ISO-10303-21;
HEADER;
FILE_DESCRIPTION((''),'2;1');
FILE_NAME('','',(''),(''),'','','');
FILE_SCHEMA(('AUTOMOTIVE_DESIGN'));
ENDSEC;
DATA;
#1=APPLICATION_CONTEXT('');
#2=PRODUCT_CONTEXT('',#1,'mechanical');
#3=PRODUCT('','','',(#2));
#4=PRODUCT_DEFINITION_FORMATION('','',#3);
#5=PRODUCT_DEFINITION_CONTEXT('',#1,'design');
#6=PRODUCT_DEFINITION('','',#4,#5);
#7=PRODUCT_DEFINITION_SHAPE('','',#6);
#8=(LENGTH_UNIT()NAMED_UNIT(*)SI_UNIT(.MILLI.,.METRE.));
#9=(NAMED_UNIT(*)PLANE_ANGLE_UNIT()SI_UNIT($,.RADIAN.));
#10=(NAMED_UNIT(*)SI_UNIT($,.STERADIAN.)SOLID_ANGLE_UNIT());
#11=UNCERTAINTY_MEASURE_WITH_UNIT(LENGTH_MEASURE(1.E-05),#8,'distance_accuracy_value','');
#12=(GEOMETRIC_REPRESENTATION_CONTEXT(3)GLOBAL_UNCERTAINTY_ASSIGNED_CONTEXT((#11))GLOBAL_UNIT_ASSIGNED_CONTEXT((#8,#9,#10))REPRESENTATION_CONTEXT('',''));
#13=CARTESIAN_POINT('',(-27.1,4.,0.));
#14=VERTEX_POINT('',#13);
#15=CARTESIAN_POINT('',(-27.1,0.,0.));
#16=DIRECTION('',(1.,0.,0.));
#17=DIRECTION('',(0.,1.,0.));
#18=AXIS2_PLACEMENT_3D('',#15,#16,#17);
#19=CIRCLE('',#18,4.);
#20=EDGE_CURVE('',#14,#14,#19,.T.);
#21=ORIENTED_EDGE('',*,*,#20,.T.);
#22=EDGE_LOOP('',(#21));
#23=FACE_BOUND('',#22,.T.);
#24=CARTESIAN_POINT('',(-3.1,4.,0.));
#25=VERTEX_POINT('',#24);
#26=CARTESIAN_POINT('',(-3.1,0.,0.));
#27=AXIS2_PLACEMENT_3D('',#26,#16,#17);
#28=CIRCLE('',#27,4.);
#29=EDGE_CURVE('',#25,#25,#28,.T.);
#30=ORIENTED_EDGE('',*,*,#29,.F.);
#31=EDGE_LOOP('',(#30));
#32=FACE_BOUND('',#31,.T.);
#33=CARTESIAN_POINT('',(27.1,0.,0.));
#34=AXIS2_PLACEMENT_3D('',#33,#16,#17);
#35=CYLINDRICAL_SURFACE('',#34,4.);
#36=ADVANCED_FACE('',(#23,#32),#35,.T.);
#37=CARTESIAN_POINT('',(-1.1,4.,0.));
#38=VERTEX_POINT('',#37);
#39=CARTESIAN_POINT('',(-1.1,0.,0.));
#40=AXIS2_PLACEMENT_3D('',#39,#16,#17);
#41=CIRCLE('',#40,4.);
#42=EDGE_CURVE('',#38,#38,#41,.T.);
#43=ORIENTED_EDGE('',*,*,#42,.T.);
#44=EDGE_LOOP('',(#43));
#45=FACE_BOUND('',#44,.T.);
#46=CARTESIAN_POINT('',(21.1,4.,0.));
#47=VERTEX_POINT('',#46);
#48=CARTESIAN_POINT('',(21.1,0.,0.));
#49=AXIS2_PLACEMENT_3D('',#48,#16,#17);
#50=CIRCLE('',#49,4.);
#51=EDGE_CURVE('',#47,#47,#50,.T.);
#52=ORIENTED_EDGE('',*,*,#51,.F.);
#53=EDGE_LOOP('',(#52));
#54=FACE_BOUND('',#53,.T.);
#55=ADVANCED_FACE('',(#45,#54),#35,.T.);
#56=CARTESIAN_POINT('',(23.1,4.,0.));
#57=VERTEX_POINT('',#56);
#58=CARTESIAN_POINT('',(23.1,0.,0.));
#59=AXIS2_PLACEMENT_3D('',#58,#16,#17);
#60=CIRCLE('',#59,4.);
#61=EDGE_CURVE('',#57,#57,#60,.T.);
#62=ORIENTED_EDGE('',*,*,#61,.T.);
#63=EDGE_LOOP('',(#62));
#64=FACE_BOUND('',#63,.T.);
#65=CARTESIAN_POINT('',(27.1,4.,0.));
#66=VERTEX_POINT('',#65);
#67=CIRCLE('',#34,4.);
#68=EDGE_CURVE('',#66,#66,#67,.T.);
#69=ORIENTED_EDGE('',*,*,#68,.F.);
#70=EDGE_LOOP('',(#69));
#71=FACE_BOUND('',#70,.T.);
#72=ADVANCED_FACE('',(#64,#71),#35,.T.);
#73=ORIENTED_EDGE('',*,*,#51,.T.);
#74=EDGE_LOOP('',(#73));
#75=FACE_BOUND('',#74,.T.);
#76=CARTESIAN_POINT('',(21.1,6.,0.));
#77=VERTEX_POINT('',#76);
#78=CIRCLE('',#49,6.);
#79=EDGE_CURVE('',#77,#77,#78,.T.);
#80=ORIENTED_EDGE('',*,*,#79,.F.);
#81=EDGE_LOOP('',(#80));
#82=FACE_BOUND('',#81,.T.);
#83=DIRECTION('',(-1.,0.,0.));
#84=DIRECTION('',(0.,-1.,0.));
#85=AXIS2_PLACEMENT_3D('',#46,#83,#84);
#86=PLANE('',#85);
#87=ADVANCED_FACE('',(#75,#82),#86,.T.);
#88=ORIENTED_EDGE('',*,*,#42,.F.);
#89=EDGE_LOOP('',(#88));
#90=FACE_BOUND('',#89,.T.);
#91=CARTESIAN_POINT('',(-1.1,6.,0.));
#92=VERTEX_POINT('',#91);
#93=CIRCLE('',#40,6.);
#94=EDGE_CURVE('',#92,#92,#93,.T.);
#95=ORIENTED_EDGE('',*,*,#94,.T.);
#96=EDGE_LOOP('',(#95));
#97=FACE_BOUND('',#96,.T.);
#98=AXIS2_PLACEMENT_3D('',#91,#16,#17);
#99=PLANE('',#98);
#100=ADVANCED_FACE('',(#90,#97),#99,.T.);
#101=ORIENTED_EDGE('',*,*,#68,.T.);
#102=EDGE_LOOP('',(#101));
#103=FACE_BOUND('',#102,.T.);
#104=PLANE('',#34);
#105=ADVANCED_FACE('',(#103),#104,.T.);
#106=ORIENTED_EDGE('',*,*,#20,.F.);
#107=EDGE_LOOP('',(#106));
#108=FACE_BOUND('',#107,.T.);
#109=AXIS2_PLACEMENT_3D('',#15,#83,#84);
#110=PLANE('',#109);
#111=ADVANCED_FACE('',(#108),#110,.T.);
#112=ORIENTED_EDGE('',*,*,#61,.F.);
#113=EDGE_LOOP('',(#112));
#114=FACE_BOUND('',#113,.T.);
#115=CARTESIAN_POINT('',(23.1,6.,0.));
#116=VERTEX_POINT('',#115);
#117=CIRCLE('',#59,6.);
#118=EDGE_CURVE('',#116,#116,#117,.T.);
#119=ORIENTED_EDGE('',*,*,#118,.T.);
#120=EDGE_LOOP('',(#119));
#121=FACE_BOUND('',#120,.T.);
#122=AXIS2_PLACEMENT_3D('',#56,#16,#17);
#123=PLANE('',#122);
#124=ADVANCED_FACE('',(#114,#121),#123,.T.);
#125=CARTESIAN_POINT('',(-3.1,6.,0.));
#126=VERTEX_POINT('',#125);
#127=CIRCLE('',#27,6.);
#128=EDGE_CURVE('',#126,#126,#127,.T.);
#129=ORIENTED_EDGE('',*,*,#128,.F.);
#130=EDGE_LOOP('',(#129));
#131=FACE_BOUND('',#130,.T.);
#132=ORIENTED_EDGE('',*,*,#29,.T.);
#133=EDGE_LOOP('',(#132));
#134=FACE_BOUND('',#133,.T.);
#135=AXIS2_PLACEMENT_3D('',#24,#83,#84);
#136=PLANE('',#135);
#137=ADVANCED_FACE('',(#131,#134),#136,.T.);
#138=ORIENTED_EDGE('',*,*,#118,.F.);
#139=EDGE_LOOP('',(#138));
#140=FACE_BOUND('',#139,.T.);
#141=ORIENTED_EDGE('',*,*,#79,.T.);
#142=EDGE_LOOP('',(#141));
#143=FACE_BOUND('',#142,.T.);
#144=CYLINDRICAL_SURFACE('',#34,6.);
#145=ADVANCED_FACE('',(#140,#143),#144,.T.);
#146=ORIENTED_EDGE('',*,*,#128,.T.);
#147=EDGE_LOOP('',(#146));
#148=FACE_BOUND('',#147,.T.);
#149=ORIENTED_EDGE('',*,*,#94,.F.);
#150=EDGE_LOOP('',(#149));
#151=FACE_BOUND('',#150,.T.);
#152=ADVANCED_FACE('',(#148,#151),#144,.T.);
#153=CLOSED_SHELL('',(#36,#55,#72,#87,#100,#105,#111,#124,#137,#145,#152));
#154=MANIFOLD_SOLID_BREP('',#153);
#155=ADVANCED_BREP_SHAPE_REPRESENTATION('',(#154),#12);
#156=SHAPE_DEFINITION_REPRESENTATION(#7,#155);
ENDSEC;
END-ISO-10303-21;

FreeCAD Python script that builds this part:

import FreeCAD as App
import Part
import Sketcher

V = App.Vector


def add_polygon(sketch, points):
    """Adds a closed chain of lines whose ends are joined by coincident constraints."""
    first, n = sketch.GeometryCount, len(points)
    for a, b in zip(points, points[1:] + points[:1]):
        sketch.addGeometry(Part.LineSegment(App.Vector(*a, 0), App.Vector(*b, 0)), False)
    for i in range(n):
        sketch.addConstraint(Sketcher.Constraint("Coincident", first + i, 2, first + (i + 1) % n, 1))

doc = App.newDocument("Part")
body = doc.addObject("PartDesign::Body", "Body")

# Sketch on XY plane
sketch1 = body.newObject("Sketcher::SketchObject", "Sketch")
sketch1.AttachmentSupport = (doc.getObject("XY_Plane"), [""])
sketch1.MapMode = "FlatFace"
add_polygon(sketch1, [(-3.1, 4), (-27.1, 4), (-27.1, 0), (27.1, 0), (27.1, 4), (23.1, 4), (23.1, 6), (21.1, 6), (21.1, 4), (-1.1, 4), (-1.1, 6), (-3.1, 6)])  # lines 0-11
sketch1.addConstraint([
    Sketcher.Constraint("Horizontal", 0),
    Sketcher.Constraint("Vertical", 1),
    Sketcher.Constraint("Horizontal", 2),
    Sketcher.Constraint("Vertical", 3),
    Sketcher.Constraint("Horizontal", 4),
    Sketcher.Constraint("Vertical", 5),
    Sketcher.Constraint("Horizontal", 6),
    Sketcher.Constraint("Vertical", 7),
    Sketcher.Constraint("Horizontal", 8),
    Sketcher.Constraint("Vertical", 9),
    Sketcher.Constraint("Horizontal", 10),
    Sketcher.Constraint("Vertical", 11),
    Sketcher.Constraint("Symmetric", 1, 2, 2, 2, -1, 1),
    Sketcher.Constraint("Horizontal", 0, 2, 3, 2),
    Sketcher.Constraint("Horizontal", 4, 2, 7, 2),
    Sketcher.Constraint("Horizontal", 6, 2, 9, 2),
    Sketcher.Constraint("Equal", 6, 10),
    Sketcher.Constraint("Equal", 4, 1),
    Sketcher.Constraint("Equal", 10, 5),
    Sketcher.Constraint("DistanceX", 0, 2, 0, 1, 24.0),
    Sketcher.Constraint("DistanceX", 4, 2, 4, 1, 4.0),
    Sketcher.Constraint("DistanceX", 6, 2, 6, 1, 2.0),
    Sketcher.Constraint("DistanceX", 2, 1, 2, 2, 54.2),
])
revolution = body.newObject("PartDesign::Revolution", "Revolution")
revolution.Profile = sketch1
revolution.ReferenceAxis = (sketch1, ["H_Axis"])
revolution.Angle = 360

doc.recompute()
